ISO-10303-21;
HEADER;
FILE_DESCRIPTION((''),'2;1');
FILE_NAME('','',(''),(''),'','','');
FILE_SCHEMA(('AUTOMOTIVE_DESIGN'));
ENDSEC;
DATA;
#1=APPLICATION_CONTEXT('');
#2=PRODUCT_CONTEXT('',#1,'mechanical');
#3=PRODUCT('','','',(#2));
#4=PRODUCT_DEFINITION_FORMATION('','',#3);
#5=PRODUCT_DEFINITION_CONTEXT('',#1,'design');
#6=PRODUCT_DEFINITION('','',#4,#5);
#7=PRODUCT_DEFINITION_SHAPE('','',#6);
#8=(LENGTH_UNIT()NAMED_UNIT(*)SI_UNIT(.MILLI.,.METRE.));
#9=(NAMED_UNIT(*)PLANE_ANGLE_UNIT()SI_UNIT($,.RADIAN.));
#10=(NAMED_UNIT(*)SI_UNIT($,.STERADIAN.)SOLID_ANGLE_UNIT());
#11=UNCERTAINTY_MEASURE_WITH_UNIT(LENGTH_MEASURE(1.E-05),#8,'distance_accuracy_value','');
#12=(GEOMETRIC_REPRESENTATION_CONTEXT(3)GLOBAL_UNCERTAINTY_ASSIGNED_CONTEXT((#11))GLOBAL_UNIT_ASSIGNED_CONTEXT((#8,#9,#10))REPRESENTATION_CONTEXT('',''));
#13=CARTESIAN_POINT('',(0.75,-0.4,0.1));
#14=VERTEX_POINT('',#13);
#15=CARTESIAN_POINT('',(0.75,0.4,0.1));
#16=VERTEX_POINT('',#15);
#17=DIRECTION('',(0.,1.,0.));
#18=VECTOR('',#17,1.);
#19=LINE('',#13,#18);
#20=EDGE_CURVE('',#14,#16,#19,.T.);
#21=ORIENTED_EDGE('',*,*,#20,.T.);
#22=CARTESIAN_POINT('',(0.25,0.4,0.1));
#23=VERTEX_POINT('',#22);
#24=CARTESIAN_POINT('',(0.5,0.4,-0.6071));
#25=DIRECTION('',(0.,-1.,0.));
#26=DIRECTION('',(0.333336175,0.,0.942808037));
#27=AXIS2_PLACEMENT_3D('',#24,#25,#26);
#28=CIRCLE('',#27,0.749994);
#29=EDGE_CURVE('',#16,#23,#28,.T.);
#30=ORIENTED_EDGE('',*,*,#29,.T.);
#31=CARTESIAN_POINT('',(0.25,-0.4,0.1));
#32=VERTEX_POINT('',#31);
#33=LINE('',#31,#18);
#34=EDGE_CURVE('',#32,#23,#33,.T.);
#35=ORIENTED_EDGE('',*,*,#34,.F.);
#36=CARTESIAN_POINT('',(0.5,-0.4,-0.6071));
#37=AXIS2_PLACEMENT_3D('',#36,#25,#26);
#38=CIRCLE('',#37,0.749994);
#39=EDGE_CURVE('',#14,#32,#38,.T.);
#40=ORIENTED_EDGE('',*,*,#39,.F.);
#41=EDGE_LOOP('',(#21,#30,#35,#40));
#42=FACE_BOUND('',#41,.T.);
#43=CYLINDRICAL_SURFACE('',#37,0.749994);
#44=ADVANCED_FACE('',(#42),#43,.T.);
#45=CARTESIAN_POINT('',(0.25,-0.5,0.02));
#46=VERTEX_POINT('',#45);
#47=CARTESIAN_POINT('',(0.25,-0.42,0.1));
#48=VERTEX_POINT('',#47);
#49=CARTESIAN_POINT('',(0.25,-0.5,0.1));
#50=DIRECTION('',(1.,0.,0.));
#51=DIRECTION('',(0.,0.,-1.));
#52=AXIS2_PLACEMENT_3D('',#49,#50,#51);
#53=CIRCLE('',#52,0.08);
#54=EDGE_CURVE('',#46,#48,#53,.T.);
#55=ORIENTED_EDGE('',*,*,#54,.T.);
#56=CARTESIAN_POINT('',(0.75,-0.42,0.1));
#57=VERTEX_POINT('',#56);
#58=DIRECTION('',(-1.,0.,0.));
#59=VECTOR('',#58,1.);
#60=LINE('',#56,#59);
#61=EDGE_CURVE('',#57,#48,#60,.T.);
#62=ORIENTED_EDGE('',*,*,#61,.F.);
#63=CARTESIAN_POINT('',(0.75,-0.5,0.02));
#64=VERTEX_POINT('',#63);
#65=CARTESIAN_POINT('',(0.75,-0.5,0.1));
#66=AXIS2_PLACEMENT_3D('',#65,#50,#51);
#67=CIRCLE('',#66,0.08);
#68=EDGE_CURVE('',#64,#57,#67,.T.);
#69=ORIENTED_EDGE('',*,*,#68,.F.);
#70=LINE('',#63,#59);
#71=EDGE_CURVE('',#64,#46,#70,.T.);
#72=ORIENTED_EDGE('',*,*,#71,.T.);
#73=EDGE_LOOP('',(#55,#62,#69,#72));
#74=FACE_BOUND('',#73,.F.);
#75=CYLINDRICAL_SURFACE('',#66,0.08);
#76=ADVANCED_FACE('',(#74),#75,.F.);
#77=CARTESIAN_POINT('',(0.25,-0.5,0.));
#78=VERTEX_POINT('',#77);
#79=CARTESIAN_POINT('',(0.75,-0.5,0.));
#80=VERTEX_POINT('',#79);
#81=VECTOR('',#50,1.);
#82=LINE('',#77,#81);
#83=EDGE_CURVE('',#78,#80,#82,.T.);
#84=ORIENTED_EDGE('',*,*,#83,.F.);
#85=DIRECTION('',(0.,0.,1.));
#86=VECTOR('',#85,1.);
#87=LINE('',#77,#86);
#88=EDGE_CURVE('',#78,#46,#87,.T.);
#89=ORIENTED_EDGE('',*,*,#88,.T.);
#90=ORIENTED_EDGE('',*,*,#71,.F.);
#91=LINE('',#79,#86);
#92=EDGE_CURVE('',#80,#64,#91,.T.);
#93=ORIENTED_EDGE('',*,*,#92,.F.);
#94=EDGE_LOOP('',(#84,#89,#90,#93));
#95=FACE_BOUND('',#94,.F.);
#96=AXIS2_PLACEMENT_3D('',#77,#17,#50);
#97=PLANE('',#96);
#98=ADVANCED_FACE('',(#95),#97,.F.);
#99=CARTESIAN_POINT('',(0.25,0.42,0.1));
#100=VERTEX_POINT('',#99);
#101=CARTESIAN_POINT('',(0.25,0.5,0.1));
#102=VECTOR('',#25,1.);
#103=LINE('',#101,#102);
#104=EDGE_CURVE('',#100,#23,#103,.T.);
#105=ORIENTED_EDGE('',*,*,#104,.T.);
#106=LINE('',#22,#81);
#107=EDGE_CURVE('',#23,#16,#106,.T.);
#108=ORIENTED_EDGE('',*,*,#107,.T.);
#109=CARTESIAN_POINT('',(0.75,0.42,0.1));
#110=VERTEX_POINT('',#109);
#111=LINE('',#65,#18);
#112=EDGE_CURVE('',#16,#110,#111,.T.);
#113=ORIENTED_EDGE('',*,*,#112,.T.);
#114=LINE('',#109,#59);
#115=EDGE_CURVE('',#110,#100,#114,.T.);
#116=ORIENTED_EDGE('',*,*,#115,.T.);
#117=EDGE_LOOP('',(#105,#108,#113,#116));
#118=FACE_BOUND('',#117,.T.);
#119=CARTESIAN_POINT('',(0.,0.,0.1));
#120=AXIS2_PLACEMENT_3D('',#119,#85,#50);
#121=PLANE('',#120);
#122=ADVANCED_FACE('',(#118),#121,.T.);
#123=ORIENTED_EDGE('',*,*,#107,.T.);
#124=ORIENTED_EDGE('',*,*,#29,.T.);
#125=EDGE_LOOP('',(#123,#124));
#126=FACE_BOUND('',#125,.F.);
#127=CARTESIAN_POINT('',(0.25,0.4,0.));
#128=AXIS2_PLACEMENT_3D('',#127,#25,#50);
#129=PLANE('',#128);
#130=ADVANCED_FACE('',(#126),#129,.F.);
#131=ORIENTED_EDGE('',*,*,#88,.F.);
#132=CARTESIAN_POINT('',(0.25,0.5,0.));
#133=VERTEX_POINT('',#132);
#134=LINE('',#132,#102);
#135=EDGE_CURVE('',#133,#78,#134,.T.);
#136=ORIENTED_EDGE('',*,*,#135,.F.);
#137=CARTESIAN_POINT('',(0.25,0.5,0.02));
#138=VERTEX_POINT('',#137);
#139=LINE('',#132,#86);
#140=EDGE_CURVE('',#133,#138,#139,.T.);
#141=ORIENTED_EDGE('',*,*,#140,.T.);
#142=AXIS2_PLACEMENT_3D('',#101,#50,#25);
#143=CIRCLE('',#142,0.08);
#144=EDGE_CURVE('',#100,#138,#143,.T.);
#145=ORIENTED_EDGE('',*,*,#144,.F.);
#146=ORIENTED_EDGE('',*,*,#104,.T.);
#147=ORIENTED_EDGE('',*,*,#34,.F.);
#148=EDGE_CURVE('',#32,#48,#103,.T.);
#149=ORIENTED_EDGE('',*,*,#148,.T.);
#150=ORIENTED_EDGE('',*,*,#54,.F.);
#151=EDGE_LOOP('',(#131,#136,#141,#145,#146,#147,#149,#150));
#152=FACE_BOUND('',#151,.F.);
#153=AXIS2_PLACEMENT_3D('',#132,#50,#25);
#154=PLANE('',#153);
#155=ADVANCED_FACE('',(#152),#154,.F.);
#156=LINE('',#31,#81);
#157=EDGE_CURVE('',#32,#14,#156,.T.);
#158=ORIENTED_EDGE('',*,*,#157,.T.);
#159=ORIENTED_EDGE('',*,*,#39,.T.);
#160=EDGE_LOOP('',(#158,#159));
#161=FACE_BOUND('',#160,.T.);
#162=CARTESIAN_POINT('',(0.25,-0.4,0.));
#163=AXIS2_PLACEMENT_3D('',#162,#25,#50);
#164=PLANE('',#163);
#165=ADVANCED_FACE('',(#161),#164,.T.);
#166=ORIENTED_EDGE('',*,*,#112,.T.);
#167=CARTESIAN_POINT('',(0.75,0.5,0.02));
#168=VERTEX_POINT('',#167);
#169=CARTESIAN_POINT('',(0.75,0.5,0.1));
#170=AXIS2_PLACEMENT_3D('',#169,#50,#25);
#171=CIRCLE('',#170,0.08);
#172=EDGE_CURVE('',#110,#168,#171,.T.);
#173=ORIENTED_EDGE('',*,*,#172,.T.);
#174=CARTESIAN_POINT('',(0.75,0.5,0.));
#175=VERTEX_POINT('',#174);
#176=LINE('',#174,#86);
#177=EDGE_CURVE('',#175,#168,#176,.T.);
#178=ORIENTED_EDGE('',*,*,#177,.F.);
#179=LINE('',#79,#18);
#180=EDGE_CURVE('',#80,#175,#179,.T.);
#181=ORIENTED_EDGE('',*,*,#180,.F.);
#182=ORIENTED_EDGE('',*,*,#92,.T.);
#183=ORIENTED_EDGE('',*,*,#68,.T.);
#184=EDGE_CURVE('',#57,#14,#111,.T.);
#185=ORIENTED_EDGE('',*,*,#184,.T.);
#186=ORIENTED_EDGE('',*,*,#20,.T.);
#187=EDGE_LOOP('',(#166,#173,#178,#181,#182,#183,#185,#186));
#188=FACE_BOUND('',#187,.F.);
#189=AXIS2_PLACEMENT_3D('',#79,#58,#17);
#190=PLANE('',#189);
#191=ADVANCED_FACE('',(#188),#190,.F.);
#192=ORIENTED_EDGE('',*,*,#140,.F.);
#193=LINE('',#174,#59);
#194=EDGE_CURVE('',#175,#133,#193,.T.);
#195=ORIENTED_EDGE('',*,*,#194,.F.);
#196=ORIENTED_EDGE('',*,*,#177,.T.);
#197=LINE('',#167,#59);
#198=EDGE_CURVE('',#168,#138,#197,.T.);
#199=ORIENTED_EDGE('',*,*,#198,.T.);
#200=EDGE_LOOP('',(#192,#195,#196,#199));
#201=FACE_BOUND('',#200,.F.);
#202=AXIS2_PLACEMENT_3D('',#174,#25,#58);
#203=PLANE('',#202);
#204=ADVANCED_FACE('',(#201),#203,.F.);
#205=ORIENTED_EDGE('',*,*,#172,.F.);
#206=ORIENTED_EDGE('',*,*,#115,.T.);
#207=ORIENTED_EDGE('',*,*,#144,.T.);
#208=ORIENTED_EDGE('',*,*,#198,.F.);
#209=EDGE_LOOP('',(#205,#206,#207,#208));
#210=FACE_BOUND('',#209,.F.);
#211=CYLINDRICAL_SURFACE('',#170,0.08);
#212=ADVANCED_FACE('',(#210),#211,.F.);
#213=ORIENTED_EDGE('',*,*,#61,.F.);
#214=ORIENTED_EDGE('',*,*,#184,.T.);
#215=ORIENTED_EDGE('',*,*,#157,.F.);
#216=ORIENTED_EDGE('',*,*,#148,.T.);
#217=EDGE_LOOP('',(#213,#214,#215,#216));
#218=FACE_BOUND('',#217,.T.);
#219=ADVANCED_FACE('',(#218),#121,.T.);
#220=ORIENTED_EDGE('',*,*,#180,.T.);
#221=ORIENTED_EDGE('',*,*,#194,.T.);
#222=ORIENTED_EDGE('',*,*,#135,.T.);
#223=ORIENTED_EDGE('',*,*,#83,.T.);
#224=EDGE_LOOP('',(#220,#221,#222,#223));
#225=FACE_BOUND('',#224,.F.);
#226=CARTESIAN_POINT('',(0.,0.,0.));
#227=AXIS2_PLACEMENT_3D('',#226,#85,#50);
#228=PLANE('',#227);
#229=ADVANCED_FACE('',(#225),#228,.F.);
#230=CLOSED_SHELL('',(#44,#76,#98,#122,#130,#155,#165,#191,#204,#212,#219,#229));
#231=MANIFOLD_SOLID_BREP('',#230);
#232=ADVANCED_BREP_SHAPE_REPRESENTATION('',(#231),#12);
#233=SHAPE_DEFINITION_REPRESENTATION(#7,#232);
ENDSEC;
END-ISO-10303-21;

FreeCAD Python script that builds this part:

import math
import FreeCAD as App
import Part
import Sketcher
Q = App.Units.Quantity


def add_polygon(sketch, points):
    """Adds a closed chain of lines whose ends are joined by coincident constraints."""
    first, n = sketch.GeometryCount, len(points)
    for a, b in zip(points, points[1:] + points[:1]):
        sketch.addGeometry(Part.LineSegment(App.Vector(*a, 0), App.Vector(*b, 0)), False)
    for i in range(n):
        sketch.addConstraint(Sketcher.Constraint("Coincident", first + i, 2, first + (i + 1) % n, 1))

doc = App.newDocument("Part")
body = doc.addObject("PartDesign::Body", "Body")

sketch1 = body.newObject("Sketcher::SketchObject", "Sketch")
sketch1.AttachmentSupport = (doc.getObject("XY_Plane"), [""])
sketch1.MapMode = "FlatFace"
add_polygon(sketch1, [(0.2, 0.5), (0.2, -0.5), (0.8, -0.5), (0.8, 0.5)])
sketch1.addConstraint(Sketcher.Constraint("Vertical", 0))
sketch1.addConstraint(Sketcher.Constraint("Horizontal", 1))
sketch1.addConstraint(Sketcher.Constraint("Vertical", 2))
sketch1.addConstraint(Sketcher.Constraint("Horizontal", 3))
sketch1.addConstraint(Sketcher.Constraint("DistanceY", 0, 2, 0, 1, Q("1 mm")))
sketch1.addConstraint(Sketcher.Constraint("DistanceX", 1, 1, 1, 2, Q("0.5 mm")))
sketch1.addConstraint(Sketcher.Constraint("DistanceY", 0, 2, -1, 1, Q("0.5 mm")))
sketch1.addConstraint(Sketcher.Constraint("DistanceX", -1, 1, 0, 2, Q("0.25 mm")))
pad1 = body.newObject("PartDesign::Pad", "Pad")
pad1.Profile = sketch1
pad1.Length = 0.1

sketch2 = body.newObject("Sketcher::SketchObject", "Sketch001")
sketch2.AttachmentSupport = (doc.getObject("YZ_Plane"), [""])
sketch2.MapMode = "FlatFace"
sketch2.AttachmentOffset = App.Placement(App.Vector(0, 0, 0.75), App.Rotation())
sketch2.addGeometry(Part.LineSegment(App.Vector(-0.5, 0.1, 0), App.Vector(-0.5, 0.02, 0)), False)
sketch2.addGeometry(Part.ArcOfCircle(Part.Circle(App.Vector(-0.5, 0.1, 0), App.Vector(0, 0, 1), 0.08), math.radians(-90), math.radians(0)), False)
sketch2.addGeometry(Part.LineSegment(App.Vector(-0.42, 0.1, 0), App.Vector(-0.5, 0.1, 0)), False)
sketch2.addGeometry(Part.LineSegment(App.Vector(0.5, 0.1, 0), App.Vector(0.42, 0.1, 0)), False)
sketch2.addGeometry(Part.ArcOfCircle(Part.Circle(App.Vector(0.5, 0.1, 0), App.Vector(0, 0, 1), 0.08), math.radians(180), math.radians(270)), False)
sketch2.addGeometry(Part.LineSegment(App.Vector(0.5, 0.02, 0), App.Vector(0.5, 0.1, 0)), False)
sketch2.addConstraint(Sketcher.Constraint("Coincident", 0, 2, 1, 1))
sketch2.addConstraint(Sketcher.Constraint("Coincident", 1, 2, 2, 1))
sketch2.addConstraint(Sketcher.Constraint("Coincident", 2, 2, 0, 1))
sketch2.addConstraint(Sketcher.Constraint("Coincident", 3, 2, 4, 1))
sketch2.addConstraint(Sketcher.Constraint("Coincident", 4, 2, 5, 1))
sketch2.addConstraint(Sketcher.Constraint("Coincident", 5, 2, 3, 1))
sketch2.addConstraint(Sketcher.Constraint("Vertical", 0))
sketch2.addConstraint(Sketcher.Constraint("Horizontal", 2))
sketch2.addConstraint(Sketcher.Constraint("Horizontal", 3))
sketch2.addConstraint(Sketcher.Constraint("Vertical", 5))
sketch2.addConstraint(Sketcher.Constraint("Coincident", 2, 2, 1, 3))
sketch2.addConstraint(Sketcher.Constraint("Coincident", 5, 2, 4, 3))
sketch2.addConstraint(Sketcher.Constraint("Equal", 1, 4))
sketch2.addConstraint(Sketcher.Constraint("Symmetric", 1, 3, 4, 3, -2))
sketch2.addConstraint(Sketcher.Constraint("DistanceX", 1, 2, -1, 1, Q("0.42 mm")))
sketch2.addConstraint(Sketcher.Constraint("Radius", 1, Q("0.08 mm")))
sketch2.addConstraint(Sketcher.Constraint("DistanceY", -1, 1, 1, 3, Q("0.1 mm")))
pocket1 = body.newObject("PartDesign::Pocket", "Pocket")
pocket1.Profile = sketch2
pocket1.Length = 0.5

sketch3 = body.newObject("Sketcher::SketchObject", "Sketch002")
sketch3.AttachmentSupport = (doc.getObject("XZ_Plane"), [""])
sketch3.MapMode = "FlatFace"
sketch3.AttachmentOffset = App.Placement(App.Vector(0, 0, 0.4), App.Rotation())
sketch3.addGeometry(Part.LineSegment(App.Vector(0.2, 0.1, 0), App.Vector(0.8, 0.1, 0)), False)
sketch3.addGeometry(Part.ArcOfCircle(Part.Circle(App.Vector(0.5, -0.6, 0), App.Vector(0, 0, 1), 0.7), math.radians(71), math.radians(109)), False)
sketch3.addConstraint(Sketcher.Constraint("Coincident", 0, 1, 1, 2))
sketch3.addConstraint(Sketcher.Constraint("Coincident", 1, 1, 0, 2))
sketch3.addConstraint(Sketcher.Constraint("Horizontal", 0))
sketch3.addConstraint(Sketcher.Constraint("Radius", 1, Q("0.75 mm")))
sketch3.addConstraint(Sketcher.Constraint("DistanceX", 0, 1, 0, 2, Q("0.5 mm")))
sketch3.addConstraint(Sketcher.Constraint("DistanceX", -1, 1, 1, 3, Q("0.5 mm")))
sketch3.addConstraint(Sketcher.Constraint("DistanceY", -1, 1, 0, 1, Q("0.1 mm")))
pad2 = body.newObject("PartDesign::Pad", "Pad001")
pad2.Profile = sketch3
pad2.Length = 0.8
pad2.Reversed = True

doc.recompute()
